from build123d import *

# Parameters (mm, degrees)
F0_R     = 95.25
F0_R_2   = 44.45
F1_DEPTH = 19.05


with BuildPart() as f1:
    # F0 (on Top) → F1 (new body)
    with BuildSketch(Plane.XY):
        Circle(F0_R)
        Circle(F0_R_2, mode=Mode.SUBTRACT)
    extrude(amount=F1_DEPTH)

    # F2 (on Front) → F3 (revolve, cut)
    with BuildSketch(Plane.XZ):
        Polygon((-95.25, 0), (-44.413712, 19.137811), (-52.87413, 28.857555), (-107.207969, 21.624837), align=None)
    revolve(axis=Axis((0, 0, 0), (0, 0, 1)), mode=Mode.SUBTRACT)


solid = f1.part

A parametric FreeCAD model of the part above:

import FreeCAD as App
import Part
import Sketcher
from FreeCAD import Vector
Q = App.Units.Quantity

doc = App.newDocument("Part")
body = doc.addObject("PartDesign::Body", "Body")

# Sketch on XY plane
sketch1 = body.newObject("Sketcher::SketchObject", "Sketch")
sketch1.AttachmentSupport = (doc.getObject("XY_Plane"), [""])
sketch1.MapMode = "FlatFace"
sketch1.addGeometry([
    Part.Circle(Vector(0, 0, 0), Vector(0, 0, 1), 95),
    Part.Circle(Vector(0, 0, 0), Vector(0, 0, 1), 44),
], False)
sketch1.addConstraint([
    Sketcher.Constraint("Coincident", 0, 3, -1, 1),
    Sketcher.Constraint("Coincident", 1, 3, -1, 1),
    Sketcher.Constraint("Diameter", 0, Q("7.5 in")),
    Sketcher.Constraint("Diameter", 1, Q("3.5 in")),
])
pad1 = body.newObject("PartDesign::Pad", "Pad")
pad1.Profile = sketch1
pad1.Length = Q("0.75 in")

# Sketch on XZ plane
sketch2 = body.newObject("Sketcher::SketchObject", "Sketch001")
sketch2.AttachmentSupport = (doc.getObject("XZ_Plane"), [""])
sketch2.MapMode = "FlatFace"
sketch2.addGeometry([
    Part.LineSegment(Vector(-95, 0, 0), Vector(-44, 19, 0)),
    Part.LineSegment(Vector(-44, 19, 0), Vector(-53, 29, 0)),
    Part.LineSegment(Vector(-53, 29, 0), Vector(-107, 22, 0)),
    Part.LineSegment(Vector(-107, 22, 0), Vector(-95, 0, 0)),
], False)
sketch2.addConstraint([
    Sketcher.Constraint("Coincident", 0, 2, 1, 1),
    Sketcher.Constraint("Coincident", 1, 2, 2, 1),
    Sketcher.Constraint("Coincident", 2, 2, 3, 1),
    Sketcher.Constraint("Coincident", 3, 2, 0, 1),
    Sketcher.Constraint("PointOnObject", 3, 2, -1),
    Sketcher.Constraint("DistanceX", 3, 2, -1, 1, Q("3.75 in")),
    Sketcher.Constraint("Distance", 0, Q("54.319278 mm")),
    Sketcher.Constraint("Distance", 1, Q("12.88612 mm")),
    Sketcher.Constraint("Distance", 2, Q("54.813121 mm")),
    Sketcher.Constraint("Distance", 3, Q("24.71086 mm")),
    Sketcher.Constraint("DistanceX", 0, 2, -1, 1, Q("44.413712 mm")),
    Sketcher.Constraint("DistanceX", 1, 2, -1, 1, Q("52.87413 mm")),
])
groove = body.newObject("PartDesign::Groove", "Groove")
groove.Profile = sketch2
groove.ReferenceAxis = (sketch2, ["V_Axis"])
groove.Angle = 360

doc.recompute()
